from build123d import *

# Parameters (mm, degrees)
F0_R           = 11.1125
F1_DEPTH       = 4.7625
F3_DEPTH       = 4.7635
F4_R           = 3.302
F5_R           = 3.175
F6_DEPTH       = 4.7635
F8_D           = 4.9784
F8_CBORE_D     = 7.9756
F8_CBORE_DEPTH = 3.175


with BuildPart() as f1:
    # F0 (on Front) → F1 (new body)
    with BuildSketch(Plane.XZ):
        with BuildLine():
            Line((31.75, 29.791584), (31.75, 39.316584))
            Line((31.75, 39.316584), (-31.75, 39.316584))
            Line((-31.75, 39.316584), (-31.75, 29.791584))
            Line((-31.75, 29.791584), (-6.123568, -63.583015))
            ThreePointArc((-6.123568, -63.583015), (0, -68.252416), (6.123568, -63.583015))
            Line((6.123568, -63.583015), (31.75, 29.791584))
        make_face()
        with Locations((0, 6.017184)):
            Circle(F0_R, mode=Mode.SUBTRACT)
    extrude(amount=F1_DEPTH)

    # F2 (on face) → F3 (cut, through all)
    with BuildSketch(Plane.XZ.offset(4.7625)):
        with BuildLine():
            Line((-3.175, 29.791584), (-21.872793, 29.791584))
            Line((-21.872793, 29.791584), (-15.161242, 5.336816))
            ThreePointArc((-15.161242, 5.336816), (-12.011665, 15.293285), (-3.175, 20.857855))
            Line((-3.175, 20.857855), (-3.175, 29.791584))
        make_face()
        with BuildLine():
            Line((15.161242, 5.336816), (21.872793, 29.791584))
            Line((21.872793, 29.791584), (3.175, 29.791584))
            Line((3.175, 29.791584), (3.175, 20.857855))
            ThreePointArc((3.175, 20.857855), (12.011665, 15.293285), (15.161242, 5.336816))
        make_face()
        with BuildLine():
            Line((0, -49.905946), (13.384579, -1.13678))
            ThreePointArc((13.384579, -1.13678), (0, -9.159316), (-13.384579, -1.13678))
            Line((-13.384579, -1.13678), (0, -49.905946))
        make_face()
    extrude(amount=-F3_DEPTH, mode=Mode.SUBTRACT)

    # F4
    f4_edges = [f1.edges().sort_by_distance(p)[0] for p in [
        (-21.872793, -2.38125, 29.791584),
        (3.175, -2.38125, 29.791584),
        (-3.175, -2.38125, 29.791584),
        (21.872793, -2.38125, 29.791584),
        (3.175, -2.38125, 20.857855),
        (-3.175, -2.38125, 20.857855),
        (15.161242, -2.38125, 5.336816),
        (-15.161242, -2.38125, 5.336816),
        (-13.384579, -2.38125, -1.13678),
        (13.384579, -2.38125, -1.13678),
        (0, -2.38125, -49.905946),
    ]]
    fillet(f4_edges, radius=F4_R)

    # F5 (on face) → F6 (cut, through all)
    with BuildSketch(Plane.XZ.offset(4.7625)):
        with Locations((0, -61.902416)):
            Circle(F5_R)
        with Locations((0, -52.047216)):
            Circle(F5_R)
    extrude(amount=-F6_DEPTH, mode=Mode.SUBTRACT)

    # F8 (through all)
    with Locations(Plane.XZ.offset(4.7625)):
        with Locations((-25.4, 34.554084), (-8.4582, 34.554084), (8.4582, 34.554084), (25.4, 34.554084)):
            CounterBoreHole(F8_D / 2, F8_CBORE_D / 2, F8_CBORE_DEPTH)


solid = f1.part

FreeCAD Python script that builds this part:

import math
import FreeCAD as App
import Part
import Sketcher
from FreeCAD import Vector
Q = App.Units.Quantity


def edges_at(feature, points):
    """Names of the edges that pass closest to the given points."""
    edges = feature.Shape.Edges
    near = lambda p: min(range(len(edges)), key=lambda i: edges[i].distToShape(Part.Vertex(*p))[0])
    return sorted({f"Edge{near(p) + 1}" for p in points})

doc = App.newDocument("Part")
body = doc.addObject("PartDesign::Body", "Body")

# Sketch on XZ plane
sketch1 = body.newObject("Sketcher::SketchObject", "Sketch")
sketch1.AttachmentSupport = (doc.getObject("XZ_Plane"), [""])
sketch1.MapMode = "FlatFace"
sketch1.addGeometry([
    Part.LineSegment(Vector(32, 30, 0), Vector(32, 39, 0)),  # 0
    Part.LineSegment(Vector(32, 39, 0), Vector(-32, 39, 0)),  # 1
    Part.LineSegment(Vector(-32, 39, 0), Vector(-32, 30, 0)),  # 2
    Part.LineSegment(Vector(-32, 30, 0), Vector(-6, -64, 0)),  # 3
    Part.ArcOfCircle(Part.Circle(Vector(0, -62, 0), Vector(0, 0, 1), 6), math.radians(-165), math.radians(-15)),  # 4
    Part.LineSegment(Vector(6, -64, 0), Vector(32, 30, 0)),  # 5
    Part.Circle(Vector(0, 6, 0), Vector(0, 0, 1), 11),  # 6
], False)
sketch1.addConstraint([
    Sketcher.Constraint("Coincident", 0, 2, 1, 1),
    Sketcher.Constraint("Coincident", 1, 2, 2, 1),
    Sketcher.Constraint("Coincident", 2, 2, 3, 1),
    Sketcher.Constraint("Tangent", 3, 2, 4, 1),
    Sketcher.Constraint("Tangent", 4, 2, 5, 1),
    Sketcher.Constraint("Coincident", 5, 2, 0, 1),
    Sketcher.Constraint("Vertical", 0),
    Sketcher.Constraint("Horizontal", 1),
    Sketcher.Constraint("Vertical", 2),
    Sketcher.Constraint("Symmetric", 3, 2, 4, 2, -2),
    Sketcher.Constraint("PointOnObject", 6, 3, -2),
    Sketcher.Constraint("Horizontal", 2, 2, 5, 2),
    Sketcher.Constraint("Radius", 4, Q("0.25 in")),
    Sketcher.Constraint("Diameter", 6, Q("0.875 in")),
    Sketcher.Constraint("DistanceX", 1, 2, 1, 1, Q("2.5 in")),
    Sketcher.Constraint("DistanceY", 0, 1, 0, 2, Q("0.375 in")),
    Sketcher.Constraint("DistanceY", 4, 3, 2, 2, Q("3.61 in")),
    Sketcher.Constraint("DistanceY", 4, 3, 6, 3, Q("2.674 in")),
    Sketcher.Constraint("DistanceY", 4, 3, -1, 1, 61.902416),
])
pad1 = body.newObject("PartDesign::Pad", "Pad")
pad1.Profile = sketch1
pad1.Length = Q("0.1875 in")

# Sketch on XZ plane
sketch2 = body.newObject("Sketcher::SketchObject", "Sketch001")
sketch2.AttachmentSupport = (doc.getObject("XZ_Plane"), [""])
sketch2.MapMode = "FlatFace"
sketch2.AttachmentOffset = App.Placement(Vector(0, 0, 0.1875 * 25.4), App.Rotation())
sketch2.addGeometry([
    Part.LineSegment(Vector(-3, 30, 0), Vector(-22, 30, 0)),  # 0
    Part.LineSegment(Vector(-22, 30, 0), Vector(-15, 5, 0)),  # 1
    Part.ArcOfCircle(Part.Circle(Vector(0, 6, 0), Vector(0, 0, 1), 15), math.radians(102), math.radians(183)),  # 2
    Part.LineSegment(Vector(-3, 21, 0), Vector(-3, 30, 0)),  # 3
    Part.LineSegment(Vector(15, 5, 0), Vector(22, 30, 0)),  # 4
    Part.LineSegment(Vector(22, 30, 0), Vector(3, 30, 0)),  # 5
    Part.LineSegment(Vector(3, 30, 0), Vector(3, 21, 0)),  # 6
    Part.ArcOfCircle(Part.Circle(Vector(0, 6, 0), Vector(0, 0, 1), 15), math.radians(-3), math.radians(78)),  # 7
    Part.LineSegment(Vector(0, -50, 0), Vector(13, -1, 0)),  # 8
    Part.ArcOfCircle(Part.Circle(Vector(0, 6, 0), Vector(0, 0, 1), 15), math.radians(-152), math.radians(-28)),  # 9
    Part.LineSegment(Vector(-13, -1, 0), Vector(0, -50, 0)),  # 10
], False)
sketch2.addConstraint([
    Sketcher.Constraint("Coincident", 0, 2, 1, 1),
    Sketcher.Constraint("Coincident", 1, 2, 2, 2),
    Sketcher.Constraint("Coincident", 2, 1, 3, 1),
    Sketcher.Constraint("Coincident", 3, 2, 0, 1),
    Sketcher.Constraint("Coincident", 4, 2, 5, 1),
    Sketcher.Constraint("Coincident", 5, 2, 6, 1),
    Sketcher.Constraint("Coincident", 6, 2, 7, 2),
    Sketcher.Constraint("Coincident", 7, 1, 4, 1),
    Sketcher.Constraint("Coincident", 8, 2, 9, 2),
    Sketcher.Constraint("Coincident", 9, 1, 10, 1),
    Sketcher.Constraint("Coincident", 10, 2, 8, 1),
    Sketcher.Constraint("Horizontal", 0),
    Sketcher.Constraint("Vertical", 3),
    Sketcher.Constraint("Horizontal", 5),
    Sketcher.Constraint("Vertical", 6),
    Sketcher.Constraint("Coincident", 7, 3, 2, 3),
    Sketcher.Constraint("Coincident", 9, 3, 2, 3),
    Sketcher.Constraint("Equal", 2, 7),
    Sketcher.Constraint("Equal", 7, 9),
    Sketcher.Constraint("Symmetric", 0, 2, 4, 2, -2),
    Sketcher.Constraint("Symmetric", 2, 1, 6, 2, -2),
    Sketcher.Constraint("PointOnObject", 10, 2, -2),
    Sketcher.Constraint("Parallel", 4, 8),
    Sketcher.Constraint("Parallel", 1, 10),
    Sketcher.Constraint("Horizontal", 1, 2, 7, 1),
    Sketcher.Constraint("Radius", 2, Q("0.5975 in")),
    Sketcher.Constraint("DistanceX", 3, 2, 5, 2, Q("0.25 in")),
    Sketcher.Constraint("DistanceY", 9, 3, 0, 2, Q("0.936 in")),
    Sketcher.Constraint("DistanceX", 0, 2, 0, 1, 18.697793),
    Sketcher.Constraint("DistanceX", -1, 1, 7, 1, 15.161242),
    Sketcher.Constraint("DistanceX", -1, 1, 8, 2, 13.384579),
    Sketcher.Constraint("DistanceY", 8, 2, -1, 1, 1.13678),
])
pocket1 = body.newObject("PartDesign::Pocket", "Pocket")
pocket1.Profile = sketch2
pocket1.Type = "ThroughAll"
doc.recompute()

fillet = body.newObject("PartDesign::Fillet", "Fillet")
fillet.Base = (pocket1, edges_at(pocket1, [
    (-21.873, -2.381, 29.792),
    (3.175, -2.381, 29.792),
    (-3.175, -2.381, 29.792),
    (21.873, -2.381, 29.792),
    (3.175, -2.381, 20.858),
    (-3.175, -2.381, 20.858),
    (15.161, -2.381, 5.337),
    (-15.161, -2.381, 5.337),
    (-13.385, -2.381, -1.137),
    (13.385, -2.381, -1.137),
    (0, -2.381, -49.906),
]))
fillet.Radius = Q("0.13 in")

# Sketch on XZ plane
sketch3 = body.newObject("Sketcher::SketchObject", "Sketch002")
sketch3.AttachmentSupport = (doc.getObject("XZ_Plane"), [""])
sketch3.MapMode = "FlatFace"
sketch3.AttachmentOffset = App.Placement(Vector(0, 0, 0.1875 * 25.4), App.Rotation())
sketch3.addGeometry([
    Part.Circle(Vector(0, -61.9, 0), Vector(0, 0, 1), 3.2),
    Part.Circle(Vector(0, -52, 0), Vector(0, 0, 1), 3.2),
], False)
sketch3.addConstraint([
    Sketcher.Constraint("Equal", 0, 1),
    Sketcher.Constraint("PointOnObject", 0, 3, -2),
    Sketcher.Constraint("PointOnObject", 1, 3, -2),
    Sketcher.Constraint("Diameter", 0, Q("0.25 in")),
    Sketcher.Constraint("DistanceY", 0, 3, 1, 3, Q("0.388 in")),
    Sketcher.Constraint("DistanceY", 0, 3, -1, 1, 61.902416),
])
pocket2 = body.newObject("PartDesign::Pocket", "Pocket001")
pocket2.Profile = sketch3
pocket2.Type = "ThroughAll"

# Sketch on XZ plane
sketch4 = body.newObject("Sketcher::SketchObject", "Sketch003")
sketch4.AttachmentSupport = (doc.getObject("XZ_Plane"), [""])
sketch4.MapMode = "FlatFace"
sketch4.AttachmentOffset = App.Placement(Vector(0, 0, 0.1875 * 25.4), App.Rotation())
sketch4.addGeometry([
    Part.Circle(Vector(-25.4, 34.6, 0), Vector(0, 0, 1), 2.5),
    Part.Circle(Vector(-8.5, 34.6, 0), Vector(0, 0, 1), 2.5),
    Part.Circle(Vector(8.5, 34.6, 0), Vector(0, 0, 1), 2.5),
    Part.Circle(Vector(25.4, 34.6, 0), Vector(0, 0, 1), 2.5),
], False)
sketch4.addConstraint([
    Sketcher.Constraint("Equal", 0, 1),
    Sketcher.Constraint("Equal", 1, 2),
    Sketcher.Constraint("Equal", 2, 3),
    Sketcher.Constraint("Symmetric", 1, 3, 2, 3, -2),
    Sketcher.Constraint("Symmetric", 0, 3, 3, 3, -2),
    Sketcher.Constraint("Horizontal", 0, 3, 1, 3),
    Sketcher.Constraint("Diameter", 0, Q("0.196 in")),
    Sketcher.Constraint("DistanceX", 0, 3, -1, 1, Q("1 in")),
    Sketcher.Constraint("DistanceX", 1, 3, -1, 1, Q("0.333 in")),
    Sketcher.Constraint("DistanceY", -1, 1, 0, 3, 34.554084),
])
doc.recompute()
hole = body.newObject("PartDesign::Hole", "Hole")
hole.Profile = sketch4
hole.ThreadType = "None"
hole.Diameter = Q("0.196 in")
hole.DepthType = "ThroughAll"
hole.HoleCutType = "Counterbore"
hole.HoleCutDiameter = Q("0.314 in")
hole.HoleCutDepth = Q("0.125 in")

doc.recompute()
